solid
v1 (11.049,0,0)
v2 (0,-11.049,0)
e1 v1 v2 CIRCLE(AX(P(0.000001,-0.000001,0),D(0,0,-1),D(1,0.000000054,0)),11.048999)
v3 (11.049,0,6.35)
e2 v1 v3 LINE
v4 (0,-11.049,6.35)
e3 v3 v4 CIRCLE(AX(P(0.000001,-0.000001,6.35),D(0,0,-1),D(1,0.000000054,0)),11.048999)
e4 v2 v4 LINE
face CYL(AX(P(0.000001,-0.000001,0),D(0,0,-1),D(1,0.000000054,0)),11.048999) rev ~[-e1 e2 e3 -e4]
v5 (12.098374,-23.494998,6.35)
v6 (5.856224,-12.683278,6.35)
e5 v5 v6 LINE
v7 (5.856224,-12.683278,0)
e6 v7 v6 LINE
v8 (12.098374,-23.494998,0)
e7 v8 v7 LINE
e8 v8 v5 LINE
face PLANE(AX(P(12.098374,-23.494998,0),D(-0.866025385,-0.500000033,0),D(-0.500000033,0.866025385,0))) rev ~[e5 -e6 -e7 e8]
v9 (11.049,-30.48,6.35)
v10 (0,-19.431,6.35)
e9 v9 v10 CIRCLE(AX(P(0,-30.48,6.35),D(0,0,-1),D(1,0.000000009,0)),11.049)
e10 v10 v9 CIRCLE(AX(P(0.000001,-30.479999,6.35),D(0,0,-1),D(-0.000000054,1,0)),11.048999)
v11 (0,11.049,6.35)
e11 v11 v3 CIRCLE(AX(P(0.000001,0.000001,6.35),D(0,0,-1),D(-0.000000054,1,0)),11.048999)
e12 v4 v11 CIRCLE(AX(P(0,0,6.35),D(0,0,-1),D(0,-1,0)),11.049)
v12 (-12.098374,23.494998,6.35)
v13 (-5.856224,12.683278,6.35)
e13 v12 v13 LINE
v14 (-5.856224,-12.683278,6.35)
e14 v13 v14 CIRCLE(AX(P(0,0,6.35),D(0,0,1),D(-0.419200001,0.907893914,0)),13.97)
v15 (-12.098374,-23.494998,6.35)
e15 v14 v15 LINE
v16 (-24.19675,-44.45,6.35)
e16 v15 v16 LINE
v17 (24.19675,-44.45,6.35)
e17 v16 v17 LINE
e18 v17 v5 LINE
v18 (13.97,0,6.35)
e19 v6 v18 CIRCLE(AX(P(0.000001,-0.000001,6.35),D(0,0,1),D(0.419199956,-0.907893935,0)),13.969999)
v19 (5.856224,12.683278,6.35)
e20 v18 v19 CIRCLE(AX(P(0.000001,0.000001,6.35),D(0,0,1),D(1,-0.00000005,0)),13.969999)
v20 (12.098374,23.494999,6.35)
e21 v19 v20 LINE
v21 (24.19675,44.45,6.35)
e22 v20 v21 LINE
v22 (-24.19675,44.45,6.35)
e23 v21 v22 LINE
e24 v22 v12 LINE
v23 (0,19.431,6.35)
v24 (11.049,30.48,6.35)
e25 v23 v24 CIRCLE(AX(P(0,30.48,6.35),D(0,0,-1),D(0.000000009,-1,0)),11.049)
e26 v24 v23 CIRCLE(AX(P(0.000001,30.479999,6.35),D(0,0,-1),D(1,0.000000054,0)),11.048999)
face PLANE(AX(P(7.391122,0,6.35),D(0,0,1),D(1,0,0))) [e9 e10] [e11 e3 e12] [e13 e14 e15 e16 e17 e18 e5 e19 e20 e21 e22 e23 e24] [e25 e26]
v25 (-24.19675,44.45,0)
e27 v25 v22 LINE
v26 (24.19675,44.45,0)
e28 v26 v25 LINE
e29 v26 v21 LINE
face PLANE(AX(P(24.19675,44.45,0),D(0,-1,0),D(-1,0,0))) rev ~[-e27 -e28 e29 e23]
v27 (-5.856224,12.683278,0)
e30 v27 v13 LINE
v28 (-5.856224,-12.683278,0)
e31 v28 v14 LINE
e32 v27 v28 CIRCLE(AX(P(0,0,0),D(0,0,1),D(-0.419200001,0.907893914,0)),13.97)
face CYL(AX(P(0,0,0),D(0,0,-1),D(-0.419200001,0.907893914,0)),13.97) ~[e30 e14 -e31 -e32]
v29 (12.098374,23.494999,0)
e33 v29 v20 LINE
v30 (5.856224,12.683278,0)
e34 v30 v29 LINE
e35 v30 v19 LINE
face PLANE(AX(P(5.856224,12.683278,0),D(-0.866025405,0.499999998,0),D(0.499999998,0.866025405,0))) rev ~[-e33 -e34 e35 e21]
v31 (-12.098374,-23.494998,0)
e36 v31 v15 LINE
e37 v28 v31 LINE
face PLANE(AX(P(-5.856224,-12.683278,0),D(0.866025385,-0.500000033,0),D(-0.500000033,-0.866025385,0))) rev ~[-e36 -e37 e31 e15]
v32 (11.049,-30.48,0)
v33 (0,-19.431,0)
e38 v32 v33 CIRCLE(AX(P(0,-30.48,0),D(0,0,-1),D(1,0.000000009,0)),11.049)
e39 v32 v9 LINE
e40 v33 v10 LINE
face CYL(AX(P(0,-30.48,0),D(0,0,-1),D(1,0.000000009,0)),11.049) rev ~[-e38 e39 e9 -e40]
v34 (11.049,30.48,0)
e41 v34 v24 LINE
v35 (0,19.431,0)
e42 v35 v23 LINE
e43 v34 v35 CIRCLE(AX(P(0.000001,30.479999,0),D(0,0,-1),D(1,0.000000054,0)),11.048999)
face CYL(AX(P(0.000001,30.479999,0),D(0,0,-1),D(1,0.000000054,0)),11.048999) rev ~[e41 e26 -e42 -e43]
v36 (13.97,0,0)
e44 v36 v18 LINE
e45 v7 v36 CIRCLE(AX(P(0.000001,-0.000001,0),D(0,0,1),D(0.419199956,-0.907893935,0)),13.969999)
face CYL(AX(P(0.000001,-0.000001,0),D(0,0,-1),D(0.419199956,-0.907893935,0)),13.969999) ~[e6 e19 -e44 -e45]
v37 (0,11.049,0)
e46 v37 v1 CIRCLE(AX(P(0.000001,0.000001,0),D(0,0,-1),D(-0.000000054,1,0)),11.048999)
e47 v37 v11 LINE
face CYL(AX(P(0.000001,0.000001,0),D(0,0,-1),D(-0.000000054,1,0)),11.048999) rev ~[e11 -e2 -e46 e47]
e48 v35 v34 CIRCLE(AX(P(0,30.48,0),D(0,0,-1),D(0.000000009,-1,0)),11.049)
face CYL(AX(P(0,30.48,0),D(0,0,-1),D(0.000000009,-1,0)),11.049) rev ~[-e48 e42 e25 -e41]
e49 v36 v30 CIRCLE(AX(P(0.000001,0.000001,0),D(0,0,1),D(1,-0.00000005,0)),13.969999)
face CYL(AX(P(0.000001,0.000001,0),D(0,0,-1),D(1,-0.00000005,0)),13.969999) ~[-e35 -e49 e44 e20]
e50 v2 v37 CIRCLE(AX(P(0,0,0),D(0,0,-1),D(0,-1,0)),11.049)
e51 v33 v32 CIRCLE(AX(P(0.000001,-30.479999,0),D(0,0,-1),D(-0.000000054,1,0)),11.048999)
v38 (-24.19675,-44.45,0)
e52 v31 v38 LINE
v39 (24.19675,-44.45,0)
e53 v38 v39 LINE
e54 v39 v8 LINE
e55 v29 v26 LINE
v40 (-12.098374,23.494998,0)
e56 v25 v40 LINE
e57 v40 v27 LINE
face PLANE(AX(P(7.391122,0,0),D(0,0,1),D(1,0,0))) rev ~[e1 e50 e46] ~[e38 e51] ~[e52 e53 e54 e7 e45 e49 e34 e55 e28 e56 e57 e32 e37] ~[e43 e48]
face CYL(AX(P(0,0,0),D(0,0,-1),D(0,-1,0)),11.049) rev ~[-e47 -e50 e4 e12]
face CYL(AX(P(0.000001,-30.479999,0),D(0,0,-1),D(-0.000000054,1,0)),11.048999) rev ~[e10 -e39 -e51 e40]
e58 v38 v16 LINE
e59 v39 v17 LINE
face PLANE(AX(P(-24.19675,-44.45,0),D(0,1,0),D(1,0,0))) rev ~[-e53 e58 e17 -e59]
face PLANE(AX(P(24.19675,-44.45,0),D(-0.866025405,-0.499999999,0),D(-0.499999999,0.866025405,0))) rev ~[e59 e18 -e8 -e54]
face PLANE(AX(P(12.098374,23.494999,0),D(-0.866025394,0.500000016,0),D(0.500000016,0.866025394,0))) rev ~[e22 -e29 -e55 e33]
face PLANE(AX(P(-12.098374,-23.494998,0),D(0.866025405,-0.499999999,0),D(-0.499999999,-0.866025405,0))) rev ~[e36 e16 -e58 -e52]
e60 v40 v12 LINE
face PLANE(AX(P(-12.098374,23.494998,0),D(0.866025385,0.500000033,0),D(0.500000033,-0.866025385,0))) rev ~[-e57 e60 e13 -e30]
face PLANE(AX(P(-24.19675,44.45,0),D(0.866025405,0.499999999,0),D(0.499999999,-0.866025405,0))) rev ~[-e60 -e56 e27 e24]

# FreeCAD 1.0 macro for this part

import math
import FreeCAD as App
import Part
import Sketcher
Q = App.Units.Quantity

doc = App.newDocument("Part")
params = doc.addObject("Spreadsheet::Sheet", "Params")
for row, (alias, value) in enumerate([
    ("sketch1_radius", "0.55 in"),
    ("sketch1_radius2", "0.435 in"),
    ("pad1_length", "0.25 in"),
], start=1):
    params.set(f"A{row}", alias)
    params.set(f"B{row}", "=" + value)
    params.setAlias(f"B{row}", alias)

body = doc.addObject("PartDesign::Body", "Body")

# Sketch on XY plane
sketch1 = body.newObject("Sketcher::SketchObject", "Sketch")
sketch1.AttachmentSupport = (doc.getObject("XY_Plane"), [""])
sketch1.MapMode = "FlatFace"
sketch1.addGeometry(Part.ArcOfCircle(Part.Circle(App.Vector(0, 0, 0), App.Vector(0, 0, 1), 14), math.radians(-65), math.radians(0)), False)
sketch1.addGeometry(Part.ArcOfCircle(Part.Circle(App.Vector(0, 0, 0), App.Vector(0, 0, 1), 14), math.radians(0), math.radians(65)), False)
sketch1.addGeometry(Part.LineSegment(App.Vector(6, 13, 0), App.Vector(12, 23, 0)), False)
sketch1.addGeometry(Part.LineSegment(App.Vector(12, 23, 0), App.Vector(24, 44, 0)), False)
sketch1.addGeometry(Part.LineSegment(App.Vector(24, 44, 0), App.Vector(-24, 44, 0)), False)
sketch1.addGeometry(Part.LineSegment(App.Vector(-24, 44, 0), App.Vector(-12, 23, 0)), False)
sketch1.addGeometry(Part.LineSegment(App.Vector(-12, 23, 0), App.Vector(-6, 13, 0)), False)
sketch1.addGeometry(Part.ArcOfCircle(Part.Circle(App.Vector(0, 0, 0), App.Vector(0, 0, 1), 14), math.radians(115), math.radians(245)), False)
sketch1.addGeometry(Part.LineSegment(App.Vector(-6, -13, 0), App.Vector(-12, -23, 0)), False)
sketch1.addGeometry(Part.LineSegment(App.Vector(-12, -23, 0), App.Vector(-24, -44, 0)), False)
sketch1.addGeometry(Part.LineSegment(App.Vector(-24, -44, 0), App.Vector(24, -44, 0)), False)
sketch1.addGeometry(Part.LineSegment(App.Vector(24, -44, 0), App.Vector(12, -23, 0)), False)
sketch1.addGeometry(Part.LineSegment(App.Vector(12, -23, 0), App.Vector(6, -13, 0)), False)
sketch1.addGeometry(Part.ArcOfCircle(Part.Circle(App.Vector(0, -30, 0), App.Vector(0, 0, 1), 11), math.radians(0), math.radians(90)), False)
sketch1.addGeometry(Part.ArcOfCircle(Part.Circle(App.Vector(0, -30, 0), App.Vector(0, 0, 1), 11), math.radians(90), math.radians(360)), False)
sketch1.addGeometry(Part.ArcOfCircle(Part.Circle(App.Vector(0, 30, 0), App.Vector(0, 0, 1), 11), math.radians(0), math.radians(270)), False)
sketch1.addGeometry(Part.ArcOfCircle(Part.Circle(App.Vector(0, 30, 0), App.Vector(0, 0, 1), 11), math.radians(-90), math.radians(0)), False)
sketch1.addGeometry(Part.ArcOfCircle(Part.Circle(App.Vector(0, 0, 0), App.Vector(0, 0, 1), 11), math.radians(0), math.radians(90)), False)
sketch1.addGeometry(Part.ArcOfCircle(Part.Circle(App.Vector(0, 0, 0), App.Vector(0, 0, 1), 11), math.radians(-90), math.radians(0)), False)
sketch1.addGeometry(Part.ArcOfCircle(Part.Circle(App.Vector(0, 0, 0), App.Vector(0, 0, 1), 11), math.radians(90), math.radians(270)), False)
sketch1.addConstraint(Sketcher.Constraint("Tangent", 0, 2, 1, 1))
sketch1.addConstraint(Sketcher.Constraint("Coincident", 1, 2, 2, 1))
sketch1.addConstraint(Sketcher.Constraint("Coincident", 2, 2, 3, 1))
sketch1.addConstraint(Sketcher.Constraint("Coincident", 3, 2, 4, 1))
sketch1.addConstraint(Sketcher.Constraint("Coincident", 4, 2, 5, 1))
sketch1.addConstraint(Sketcher.Constraint("Coincident", 5, 2, 6, 1))
sketch1.addConstraint(Sketcher.Constraint("Coincident", 6, 2, 7, 1))
sketch1.addConstraint(Sketcher.Constraint("Coincident", 7, 2, 8, 1))
sketch1.addConstraint(Sketcher.Constraint("Coincident", 8, 2, 9, 1))
sketch1.addConstraint(Sketcher.Constraint("Coincident", 9, 2, 10, 1))
sketch1.addConstraint(Sketcher.Constraint("Coincident", 10, 2, 11, 1))
sketch1.addConstraint(Sketcher.Constraint("Coincident", 11, 2, 12, 1))
sketch1.addConstraint(Sketcher.Constraint("Coincident", 12, 2, 0, 1))
sketch1.addConstraint(Sketcher.Constraint("Tangent", 13, 1, 14, 2))
sketch1.addConstraint(Sketcher.Constraint("Coincident", 14, 1, 13, 2))
sketch1.addConstraint(Sketcher.Constraint("Tangent", 15, 1, 16, 2))
sketch1.addConstraint(Sketcher.Constraint("Coincident", 16, 1, 15, 2))
sketch1.addConstraint(Sketcher.Constraint("Tangent", 17, 1, 18, 2))
sketch1.addConstraint(Sketcher.Constraint("Tangent", 18, 1, 19, 2))
sketch1.addConstraint(Sketcher.Constraint("Tangent", 19, 1, 17, 2))
sketch1.addConstraint(Sketcher.Constraint("Horizontal", 4))
sketch1.addConstraint(Sketcher.Constraint("Horizontal", 10))
sketch1.addConstraint(Sketcher.Constraint("Coincident", 0, 3, -1, 1))
sketch1.addConstraint(Sketcher.Constraint("Coincident", 7, 3, -1, 1))
sketch1.addConstraint(Sketcher.Constraint("Coincident", 17, 3, -1, 1))
sketch1.addConstraint(Sketcher.Constraint("Equal", 0, 1))
sketch1.addConstraint(Sketcher.Constraint("Equal", 1, 7))
sketch1.addConstraint(Sketcher.Constraint("Equal", 14, 15))
sketch1.addConstraint(Sketcher.Constraint("Equal", 16, 17))
sketch1.addConstraint(Sketcher.Constraint("Symmetric", 13, 3, 15, 3, -1, 1))
sketch1.addConstraint(Sketcher.Constraint("Symmetric", 2, 2, 8, 2, -1, 1))
sketch1.addConstraint(Sketcher.Constraint("Symmetric", 3, 2, 9, 2, -1, 1))
sketch1.addConstraint(Sketcher.Constraint("Symmetric", 5, 2, 11, 2, -1, 1))
sketch1.addConstraint(Sketcher.Constraint("Symmetric", 2, 2, 5, 2, -2))
sketch1.addConstraint(Sketcher.Constraint("Symmetric", 13, 1, 15, 1, -1))
sketch1.addConstraint(Sketcher.Constraint("PointOnObject", 0, 2, -1))
sketch1.addConstraint(Sketcher.Constraint("PointOnObject", 14, 1, -2))
sketch1.addConstraint(Sketcher.Constraint("PointOnObject", 16, 1, -2))
sketch1.addConstraint(Sketcher.Constraint("PointOnObject", 17, 1, -1))
sketch1.addConstraint(Sketcher.Constraint("PointOnObject", 18, 1, -2))
sketch1.addConstraint(Sketcher.Constraint("PointOnObject", 19, 1, -2))
sketch1.addConstraint(Sketcher.Constraint("Parallel", 2, 3))
sketch1.addConstraint(Sketcher.Constraint("Parallel", 5, 6))
sketch1.addConstraint(Sketcher.Constraint("Parallel", 3, 8))
sketch1.addConstraint(Sketcher.Constraint("Parallel", 6, 11))
sketch1.addConstraint(Sketcher.Constraint("Parallel", 11, 12))
sketch1.addConstraint(Sketcher.Constraint("Horizontal", 1, 2, 6, 2))
sketch1.addConstraint(Sketcher.Constraint("Horizontal", 14, 3, 13, 1))
sketch1.addConstraint(Sketcher.Constraint("Radius", 0, Q("0.55 in")))
sketch1.addConstraint(Sketcher.Constraint("Angle", 2, Q("60 deg")))
sketch1.addConstraint(Sketcher.Constraint("Radius", 13, Q("0.435 in")))
sketch1.addConstraint(Sketcher.Constraint("DistanceY", 13, 3, -1, 1, Q("1.2 in")))
sketch1.addConstraint(Sketcher.Constraint("DistanceY", -1, 1, 3, 2, Q("1.75 in")))
sketch1.addConstraint(Sketcher.Constraint("DistanceY", 8, 2, 14, 1, Q("0.1599999 in")))
sketch1.addConstraint(Sketcher.Constraint("DistanceX", 4, 2, 4, 1, 48.3935))
sketch1.setExpression("Constraints[48]", "Params.sketch1_radius")
sketch1.setExpression("Constraints[50]", "Params.sketch1_radius2")
pad1 = body.newObject("PartDesign::Pad", "Pad")
pad1.Profile = sketch1
pad1.setExpression("Length", "Params.pad1_length")

doc.recompute()
